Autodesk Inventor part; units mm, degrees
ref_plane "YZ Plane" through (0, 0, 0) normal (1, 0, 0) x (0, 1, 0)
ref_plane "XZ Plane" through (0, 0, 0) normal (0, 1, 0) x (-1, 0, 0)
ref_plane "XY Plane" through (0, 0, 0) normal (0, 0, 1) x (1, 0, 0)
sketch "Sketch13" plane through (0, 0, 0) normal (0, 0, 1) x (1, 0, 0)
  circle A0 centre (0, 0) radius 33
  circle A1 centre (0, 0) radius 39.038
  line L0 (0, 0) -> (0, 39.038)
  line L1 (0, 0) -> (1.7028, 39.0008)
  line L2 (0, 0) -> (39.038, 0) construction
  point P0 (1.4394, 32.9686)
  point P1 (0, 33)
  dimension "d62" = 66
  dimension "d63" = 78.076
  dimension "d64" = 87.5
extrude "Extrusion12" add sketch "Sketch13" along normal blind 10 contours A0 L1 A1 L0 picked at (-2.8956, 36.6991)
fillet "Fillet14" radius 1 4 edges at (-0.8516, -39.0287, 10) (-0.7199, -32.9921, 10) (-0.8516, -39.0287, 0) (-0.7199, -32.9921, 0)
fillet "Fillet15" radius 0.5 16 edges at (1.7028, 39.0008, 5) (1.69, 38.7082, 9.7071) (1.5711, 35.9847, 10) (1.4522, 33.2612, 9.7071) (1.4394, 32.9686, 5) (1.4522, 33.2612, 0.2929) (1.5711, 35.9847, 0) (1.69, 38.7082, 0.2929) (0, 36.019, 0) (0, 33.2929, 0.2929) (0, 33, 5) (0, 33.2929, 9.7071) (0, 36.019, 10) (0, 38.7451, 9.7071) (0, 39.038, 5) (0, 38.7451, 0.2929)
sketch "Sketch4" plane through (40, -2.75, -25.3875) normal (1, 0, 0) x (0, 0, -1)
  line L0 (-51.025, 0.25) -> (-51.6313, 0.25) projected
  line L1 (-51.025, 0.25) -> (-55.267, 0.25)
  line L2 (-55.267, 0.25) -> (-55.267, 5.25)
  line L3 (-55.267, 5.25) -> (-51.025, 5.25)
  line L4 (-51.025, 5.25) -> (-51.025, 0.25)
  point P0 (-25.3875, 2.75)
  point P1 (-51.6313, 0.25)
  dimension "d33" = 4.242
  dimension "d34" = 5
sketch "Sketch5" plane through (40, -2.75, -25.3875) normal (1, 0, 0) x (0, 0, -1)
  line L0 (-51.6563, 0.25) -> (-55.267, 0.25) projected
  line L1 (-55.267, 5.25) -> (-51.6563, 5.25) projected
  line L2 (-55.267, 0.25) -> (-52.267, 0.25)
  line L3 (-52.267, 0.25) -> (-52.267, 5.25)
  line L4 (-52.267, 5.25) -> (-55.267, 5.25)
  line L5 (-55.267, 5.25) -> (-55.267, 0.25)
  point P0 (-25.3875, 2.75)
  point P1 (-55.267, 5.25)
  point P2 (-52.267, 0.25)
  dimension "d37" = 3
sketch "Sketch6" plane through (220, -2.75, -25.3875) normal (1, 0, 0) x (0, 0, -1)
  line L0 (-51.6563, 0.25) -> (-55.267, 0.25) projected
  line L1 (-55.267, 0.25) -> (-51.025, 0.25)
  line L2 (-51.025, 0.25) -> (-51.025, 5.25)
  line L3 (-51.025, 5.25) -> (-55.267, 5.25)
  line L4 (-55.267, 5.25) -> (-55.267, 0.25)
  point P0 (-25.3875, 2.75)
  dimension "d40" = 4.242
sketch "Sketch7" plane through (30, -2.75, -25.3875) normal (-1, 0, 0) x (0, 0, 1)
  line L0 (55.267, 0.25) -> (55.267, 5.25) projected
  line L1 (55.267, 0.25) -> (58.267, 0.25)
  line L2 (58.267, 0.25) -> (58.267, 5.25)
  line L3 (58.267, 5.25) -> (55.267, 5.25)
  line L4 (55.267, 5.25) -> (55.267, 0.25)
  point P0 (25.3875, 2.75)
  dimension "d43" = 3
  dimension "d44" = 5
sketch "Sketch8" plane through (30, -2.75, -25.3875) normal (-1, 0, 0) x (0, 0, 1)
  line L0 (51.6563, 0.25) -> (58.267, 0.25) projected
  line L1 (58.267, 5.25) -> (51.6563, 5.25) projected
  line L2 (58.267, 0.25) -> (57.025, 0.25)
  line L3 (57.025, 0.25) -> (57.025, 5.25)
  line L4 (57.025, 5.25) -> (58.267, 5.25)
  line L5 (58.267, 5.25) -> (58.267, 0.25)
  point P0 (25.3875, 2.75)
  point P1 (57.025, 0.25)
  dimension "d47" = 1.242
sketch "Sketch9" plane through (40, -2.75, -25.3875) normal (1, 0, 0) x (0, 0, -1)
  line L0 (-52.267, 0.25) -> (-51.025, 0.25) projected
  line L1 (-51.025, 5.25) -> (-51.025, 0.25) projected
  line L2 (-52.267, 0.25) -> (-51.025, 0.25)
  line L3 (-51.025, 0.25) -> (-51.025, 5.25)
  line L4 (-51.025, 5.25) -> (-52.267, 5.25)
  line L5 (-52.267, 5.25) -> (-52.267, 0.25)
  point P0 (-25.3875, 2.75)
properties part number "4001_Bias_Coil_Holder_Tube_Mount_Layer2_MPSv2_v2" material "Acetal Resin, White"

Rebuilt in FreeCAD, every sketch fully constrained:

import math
import FreeCAD as App
import Part
import Sketcher
Q = App.Units.Quantity


def edges_at(feature, points):
    """Names of the edges that pass closest to the given points."""
    edges = feature.Shape.Edges
    near = lambda p: min(range(len(edges)), key=lambda i: edges[i].distToShape(Part.Vertex(*p))[0])
    return sorted({f"Edge{near(p) + 1}" for p in points})

doc = App.newDocument("Part")
params = doc.addObject("Spreadsheet::Sheet", "Params")
for row, (alias, value) in enumerate([
    ("sketch1_radius", "33 mm"),
    ("pad1_length", "10 mm"),
    ("fillet_radius", "1 mm"),
    ("fillet2_radius", "0.5 mm"),
], start=1):
    params.set(f"A{row}", alias)
    params.set(f"B{row}", "=" + value)
    params.setAlias(f"B{row}", alias)

body = doc.addObject("PartDesign::Body", "Body")

# Sketch on XY plane
sketch1 = body.newObject("Sketcher::SketchObject", "Sketch")
sketch1.AttachmentSupport = (doc.getObject("XY_Plane"), [""])
sketch1.MapMode = "FlatFace"
sketch1.addGeometry([
    Part.ArcOfCircle(Part.Circle(App.Vector(0, 0, 0), App.Vector(0, 0, 1), 33), math.radians(90), math.radians(448)),
    Part.LineSegment(App.Vector(0, 33, 0), App.Vector(0, 39, 0)),
    Part.ArcOfCircle(Part.Circle(App.Vector(0, 0, 0), App.Vector(0, 0, 1), 39), math.radians(90), math.radians(448)),
    Part.LineSegment(App.Vector(1.7, 39, 0), App.Vector(1.4, 33, 0)),
], False)
sketch1.addConstraint([
    Sketcher.Constraint("Coincident", 0, 1, 1, 1),
    Sketcher.Constraint("Coincident", 1, 2, 2, 1),
    Sketcher.Constraint("Coincident", 2, 2, 3, 1),
    Sketcher.Constraint("Coincident", 3, 2, 0, 2),
    Sketcher.Constraint("Vertical", 1),
    Sketcher.Constraint("Coincident", 0, 3, -1, 1),
    Sketcher.Constraint("Coincident", 2, 3, -1, 1),
    Sketcher.Constraint("PointOnObject", 0, 1, -2),
    Sketcher.Constraint("Radius", 0, Q("33 mm")),
    Sketcher.Constraint("Radius", 2, Q("39.038 mm")),
    Sketcher.Constraint("Angle", 3, Q("-92.5 deg")),
    Sketcher.Constraint("DistanceX", -1, 1, 2, 2, Q("1.7028 mm")),
])
sketch1.setExpression("Constraints[8]", "Params.sketch1_radius")
pad1 = body.newObject("PartDesign::Pad", "Pad")
pad1.Profile = sketch1
pad1.setExpression("Length", "Params.pad1_length")
doc.recompute()

fillet = body.newObject("PartDesign::Fillet", "Fillet")
fillet.Base = (pad1, edges_at(pad1, [
    (-0.852, -39.029, 10),
    (-0.72, -32.992, 10),
    (-0.852, -39.029, 0),
    (-0.72, -32.992, 0),
]))
fillet.setExpression("Radius", "Params.fillet_radius")
doc.recompute()

fillet2 = body.newObject("PartDesign::Fillet", "Fillet001")
fillet2.Base = (fillet, edges_at(fillet, [
    (1.703, 39.001, 5),
    (1.69, 38.708, 9.707),
    (1.571, 35.985, 10),
    (1.452, 33.261, 9.707),
    (1.439, 32.969, 5),
    (1.452, 33.261, 0.293),
    (1.571, 35.985, 0),
    (1.69, 38.708, 0.293),
    (0, 36.019, 0),
    (0, 33.293, 0.293),
    (0, 33, 5),
    (0, 33.293, 9.707),
    (0, 36.019, 10),
    (0, 38.745, 9.707),
    (0, 39.038, 5),
    (0, 38.745, 0.293),
]))
fillet2.setExpression("Radius", "Params.fillet2_radius")

doc.recompute()
